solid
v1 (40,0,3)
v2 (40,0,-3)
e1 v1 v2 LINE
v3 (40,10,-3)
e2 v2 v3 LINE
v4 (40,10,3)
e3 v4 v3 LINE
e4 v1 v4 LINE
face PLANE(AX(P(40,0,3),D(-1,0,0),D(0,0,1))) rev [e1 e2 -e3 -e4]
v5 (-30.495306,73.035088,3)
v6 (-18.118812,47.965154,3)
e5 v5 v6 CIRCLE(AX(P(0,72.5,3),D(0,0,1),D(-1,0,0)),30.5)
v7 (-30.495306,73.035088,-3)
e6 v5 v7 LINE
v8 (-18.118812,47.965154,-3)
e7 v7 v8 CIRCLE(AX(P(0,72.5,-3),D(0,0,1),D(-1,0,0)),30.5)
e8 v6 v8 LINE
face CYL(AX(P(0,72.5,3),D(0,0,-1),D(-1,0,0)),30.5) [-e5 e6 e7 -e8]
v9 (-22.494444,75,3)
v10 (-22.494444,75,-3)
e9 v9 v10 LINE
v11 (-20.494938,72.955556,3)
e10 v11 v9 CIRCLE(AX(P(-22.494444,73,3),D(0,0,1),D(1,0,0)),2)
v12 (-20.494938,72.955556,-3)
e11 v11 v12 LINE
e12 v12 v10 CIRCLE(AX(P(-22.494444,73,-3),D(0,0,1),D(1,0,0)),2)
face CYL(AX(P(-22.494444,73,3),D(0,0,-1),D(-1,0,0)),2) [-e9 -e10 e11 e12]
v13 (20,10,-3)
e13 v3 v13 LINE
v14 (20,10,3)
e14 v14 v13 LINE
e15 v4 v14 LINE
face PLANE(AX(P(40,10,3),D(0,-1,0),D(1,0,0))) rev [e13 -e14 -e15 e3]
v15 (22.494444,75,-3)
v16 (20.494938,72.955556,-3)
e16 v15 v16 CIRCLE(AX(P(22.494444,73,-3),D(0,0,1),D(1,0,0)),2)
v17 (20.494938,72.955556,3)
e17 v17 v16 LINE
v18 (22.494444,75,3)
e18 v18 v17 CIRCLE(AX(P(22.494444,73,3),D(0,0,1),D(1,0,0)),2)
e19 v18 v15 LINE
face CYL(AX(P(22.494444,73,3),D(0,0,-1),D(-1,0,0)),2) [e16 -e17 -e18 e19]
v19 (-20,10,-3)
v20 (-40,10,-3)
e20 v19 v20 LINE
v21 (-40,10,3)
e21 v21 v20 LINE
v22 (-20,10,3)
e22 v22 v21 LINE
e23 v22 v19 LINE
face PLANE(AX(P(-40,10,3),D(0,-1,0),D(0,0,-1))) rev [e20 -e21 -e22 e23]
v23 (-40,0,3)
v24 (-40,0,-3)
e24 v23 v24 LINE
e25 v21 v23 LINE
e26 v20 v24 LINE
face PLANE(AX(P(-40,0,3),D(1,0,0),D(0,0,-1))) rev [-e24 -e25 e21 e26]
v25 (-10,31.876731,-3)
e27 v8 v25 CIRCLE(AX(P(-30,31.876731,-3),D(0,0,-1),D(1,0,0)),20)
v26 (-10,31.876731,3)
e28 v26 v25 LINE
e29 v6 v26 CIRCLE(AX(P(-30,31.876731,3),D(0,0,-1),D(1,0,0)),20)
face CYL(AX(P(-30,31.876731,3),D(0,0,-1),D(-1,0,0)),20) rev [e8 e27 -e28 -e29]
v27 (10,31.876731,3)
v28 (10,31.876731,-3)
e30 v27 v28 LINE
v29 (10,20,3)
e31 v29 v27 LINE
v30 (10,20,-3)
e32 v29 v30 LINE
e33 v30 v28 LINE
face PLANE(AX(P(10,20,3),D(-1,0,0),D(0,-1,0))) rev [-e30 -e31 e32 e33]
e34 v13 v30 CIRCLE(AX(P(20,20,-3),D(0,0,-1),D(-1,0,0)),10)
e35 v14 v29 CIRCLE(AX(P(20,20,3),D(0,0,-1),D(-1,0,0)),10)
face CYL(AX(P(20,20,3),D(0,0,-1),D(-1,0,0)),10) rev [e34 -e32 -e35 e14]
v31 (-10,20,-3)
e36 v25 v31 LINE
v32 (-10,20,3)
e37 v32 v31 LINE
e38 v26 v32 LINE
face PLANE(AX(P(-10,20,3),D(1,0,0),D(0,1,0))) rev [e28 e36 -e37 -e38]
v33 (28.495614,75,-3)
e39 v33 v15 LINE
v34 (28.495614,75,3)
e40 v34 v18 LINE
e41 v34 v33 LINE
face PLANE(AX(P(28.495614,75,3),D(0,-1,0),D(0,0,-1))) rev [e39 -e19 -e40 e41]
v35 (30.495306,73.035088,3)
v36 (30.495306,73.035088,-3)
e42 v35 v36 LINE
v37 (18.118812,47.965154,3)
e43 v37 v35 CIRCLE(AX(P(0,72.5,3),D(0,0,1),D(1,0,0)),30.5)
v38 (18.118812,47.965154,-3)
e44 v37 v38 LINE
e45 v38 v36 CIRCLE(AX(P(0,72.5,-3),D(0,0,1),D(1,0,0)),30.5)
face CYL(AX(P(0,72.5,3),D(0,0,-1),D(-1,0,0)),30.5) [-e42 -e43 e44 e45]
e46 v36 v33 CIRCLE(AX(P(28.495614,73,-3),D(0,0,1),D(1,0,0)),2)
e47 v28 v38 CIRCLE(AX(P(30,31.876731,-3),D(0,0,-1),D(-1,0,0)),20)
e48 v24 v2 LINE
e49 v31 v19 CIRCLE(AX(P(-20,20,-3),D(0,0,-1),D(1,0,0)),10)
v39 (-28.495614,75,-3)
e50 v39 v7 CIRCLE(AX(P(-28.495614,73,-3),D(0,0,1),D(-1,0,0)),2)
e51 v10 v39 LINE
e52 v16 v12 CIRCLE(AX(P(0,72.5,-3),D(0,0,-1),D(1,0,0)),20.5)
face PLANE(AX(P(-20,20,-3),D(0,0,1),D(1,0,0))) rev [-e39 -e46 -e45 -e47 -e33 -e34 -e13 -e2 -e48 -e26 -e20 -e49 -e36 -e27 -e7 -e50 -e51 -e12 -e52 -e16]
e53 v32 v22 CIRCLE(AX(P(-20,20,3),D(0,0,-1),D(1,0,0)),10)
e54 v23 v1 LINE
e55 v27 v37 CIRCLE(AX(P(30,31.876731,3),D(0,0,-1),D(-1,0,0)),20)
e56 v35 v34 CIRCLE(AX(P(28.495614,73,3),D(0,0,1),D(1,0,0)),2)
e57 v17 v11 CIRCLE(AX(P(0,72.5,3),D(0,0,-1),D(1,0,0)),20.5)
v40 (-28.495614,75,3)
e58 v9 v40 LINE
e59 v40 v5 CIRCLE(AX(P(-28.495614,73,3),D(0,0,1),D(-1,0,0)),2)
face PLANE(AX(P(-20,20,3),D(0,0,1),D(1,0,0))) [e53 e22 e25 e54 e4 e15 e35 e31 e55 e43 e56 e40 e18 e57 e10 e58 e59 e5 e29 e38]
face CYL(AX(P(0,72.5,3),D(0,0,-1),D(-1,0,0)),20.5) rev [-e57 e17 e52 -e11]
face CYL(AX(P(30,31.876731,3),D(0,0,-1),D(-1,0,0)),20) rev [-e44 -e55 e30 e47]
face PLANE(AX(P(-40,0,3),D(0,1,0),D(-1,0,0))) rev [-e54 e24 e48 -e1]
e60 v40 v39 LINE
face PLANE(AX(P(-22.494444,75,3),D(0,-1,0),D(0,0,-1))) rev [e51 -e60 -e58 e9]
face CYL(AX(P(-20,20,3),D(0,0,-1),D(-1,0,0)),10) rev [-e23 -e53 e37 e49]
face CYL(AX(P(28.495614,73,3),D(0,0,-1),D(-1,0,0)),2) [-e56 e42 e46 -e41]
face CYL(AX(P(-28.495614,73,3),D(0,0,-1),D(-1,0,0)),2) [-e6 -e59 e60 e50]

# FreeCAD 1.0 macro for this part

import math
import FreeCAD as App
import Part
import Sketcher

doc = App.newDocument("Part")
body = doc.addObject("PartDesign::Body", "Body")

# Sketch on XY plane
sketch1 = body.newObject("Sketcher::SketchObject", "Sketch")
sketch1.AttachmentSupport = (doc.getObject("XY_Plane"), [""])
sketch1.MapMode = "FlatFace"
sketch1.addGeometry([
    Part.LineSegment(App.Vector(-40, 0, 0), App.Vector(40, 0, 0)),  # 0
    Part.LineSegment(App.Vector(40, 0, 0), App.Vector(40, 10, 0)),  # 1
    Part.LineSegment(App.Vector(40, 10, 0), App.Vector(20, 10, 0)),  # 2
    Part.ArcOfCircle(Part.Circle(App.Vector(20, 20, 0), App.Vector(0, 0, 1), 10), math.radians(180), math.radians(270)),  # 3
    Part.LineSegment(App.Vector(10, 20, 0), App.Vector(10, 31.9, 0)),  # 4
    Part.ArcOfCircle(Part.Circle(App.Vector(30, 31.9, 0), App.Vector(0, 0, 1), 20), math.radians(126), math.radians(180)),  # 5
    Part.ArcOfCircle(Part.Circle(App.Vector(0, 72.5, 0), App.Vector(0, 0, 1), 30.5), math.radians(-54), math.radians(1)),  # 6
    Part.ArcOfCircle(Part.Circle(App.Vector(28.5, 73, 0), App.Vector(0, 0, 1), 2), math.radians(1), math.radians(90)),  # 7
    Part.LineSegment(App.Vector(28.5, 75, 0), App.Vector(22.5, 75, 0)),  # 8
    Part.ArcOfCircle(Part.Circle(App.Vector(22.5, 73, 0), App.Vector(0, 0, 1), 2), math.radians(90), math.radians(181)),  # 9
    Part.ArcOfCircle(Part.Circle(App.Vector(0, 72.5, 0), App.Vector(0, 0, 1), 20.5), math.radians(179), math.radians(361)),  # 10
    Part.ArcOfCircle(Part.Circle(App.Vector(-22.5, 73, 0), App.Vector(0, 0, 1), 2), math.radians(-1), math.radians(90)),  # 11
    Part.LineSegment(App.Vector(-22.5, 75, 0), App.Vector(-28.5, 75, 0)),  # 12
    Part.ArcOfCircle(Part.Circle(App.Vector(-28.5, 73, 0), App.Vector(0, 0, 1), 2), math.radians(90), math.radians(179)),  # 13
    Part.ArcOfCircle(Part.Circle(App.Vector(0, 72.5, 0), App.Vector(0, 0, 1), 30.5), math.radians(179), math.radians(234)),  # 14
    Part.ArcOfCircle(Part.Circle(App.Vector(-30, 31.9, 0), App.Vector(0, 0, 1), 20), math.radians(0), math.radians(54)),  # 15
    Part.LineSegment(App.Vector(-10, 31.9, 0), App.Vector(-10, 20, 0)),  # 16
    Part.ArcOfCircle(Part.Circle(App.Vector(-20, 20, 0), App.Vector(0, 0, 1), 10), math.radians(-90), math.radians(0)),  # 17
    Part.LineSegment(App.Vector(-20, 10, 0), App.Vector(-40, 10, 0)),  # 18
    Part.LineSegment(App.Vector(-40, 10, 0), App.Vector(-40, 0, 0)),  # 19
], False)
sketch1.addConstraint([
    Sketcher.Constraint("Coincident", 0, 2, 1, 1),
    Sketcher.Constraint("Coincident", 1, 2, 2, 1),
    Sketcher.Constraint("Tangent", 2, 2, 3, 2),
    Sketcher.Constraint("Tangent", 3, 1, 4, 1),
    Sketcher.Constraint("Tangent", 4, 2, 5, 2),
    Sketcher.Constraint("Tangent", 5, 1, 6, 1),
    Sketcher.Constraint("Tangent", 6, 2, 7, 1),
    Sketcher.Constraint("Tangent", 7, 2, 8, 1),
    Sketcher.Constraint("Tangent", 8, 2, 9, 1),
    Sketcher.Constraint("Tangent", 9, 2, 10, 2),
    Sketcher.Constraint("Tangent", 10, 1, 11, 1),
    Sketcher.Constraint("Tangent", 11, 2, 12, 1),
    Sketcher.Constraint("Tangent", 12, 2, 13, 1),
    Sketcher.Constraint("Tangent", 13, 2, 14, 1),
    Sketcher.Constraint("Tangent", 14, 2, 15, 2),
    Sketcher.Constraint("Tangent", 15, 1, 16, 1),
    Sketcher.Constraint("Tangent", 16, 2, 17, 2),
    Sketcher.Constraint("Tangent", 17, 1, 18, 1),
    Sketcher.Constraint("Coincident", 18, 2, 19, 1),
    Sketcher.Constraint("Coincident", 19, 2, 0, 1),
    Sketcher.Constraint("Horizontal", 0),
    Sketcher.Constraint("Vertical", 1),
    Sketcher.Constraint("Horizontal", 2),
    Sketcher.Constraint("Vertical", 4),
    Sketcher.Constraint("Horizontal", 8),
    Sketcher.Constraint("Horizontal", 12),
    Sketcher.Constraint("Vertical", 16),
    Sketcher.Constraint("Horizontal", 18),
    Sketcher.Constraint("Vertical", 19),
    Sketcher.Constraint("Coincident", 10, 3, 6, 3),
    Sketcher.Constraint("Coincident", 14, 3, 6, 3),
    Sketcher.Constraint("Equal", 7, 9),
    Sketcher.Constraint("Equal", 9, 11),
    Sketcher.Constraint("Equal", 11, 13),
    Sketcher.Constraint("Equal", 6, 14),
    Sketcher.Constraint("Equal", 5, 15),
    Sketcher.Constraint("Equal", 3, 17),
    Sketcher.Constraint("Symmetric", 0, 2, 19, 2, -1, 1),
    Sketcher.Constraint("Symmetric", 9, 3, 11, 3, -2),
    Sketcher.Constraint("Symmetric", 3, 3, 17, 3, -2),
    Sketcher.Constraint("Radius", 3, 10.0),
    Sketcher.Constraint("Radius", 5, 20.0),
    Sketcher.Constraint("Radius", 7, 2.0),
    Sketcher.Constraint("Radius", 6, 30.5),
    Sketcher.Constraint("Radius", 10, 20.5),
    Sketcher.Constraint("DistanceX", 0, 1, 0, 2, 80.0),
    Sketcher.Constraint("DistanceX", 2, 2, 2, 1, 20.0),
    Sketcher.Constraint("DistanceY", 1, 1, 1, 2, 10.0),
    Sketcher.Constraint("DistanceY", -1, 1, 7, 3, 73.0),
    Sketcher.Constraint("DistanceY", -1, 1, 6, 3, 72.5),
])
pad1 = body.newObject("PartDesign::Pad", "Pad")
pad1.Profile = sketch1
pad1.Length = 6
pad1.Midplane = True

doc.recompute()
